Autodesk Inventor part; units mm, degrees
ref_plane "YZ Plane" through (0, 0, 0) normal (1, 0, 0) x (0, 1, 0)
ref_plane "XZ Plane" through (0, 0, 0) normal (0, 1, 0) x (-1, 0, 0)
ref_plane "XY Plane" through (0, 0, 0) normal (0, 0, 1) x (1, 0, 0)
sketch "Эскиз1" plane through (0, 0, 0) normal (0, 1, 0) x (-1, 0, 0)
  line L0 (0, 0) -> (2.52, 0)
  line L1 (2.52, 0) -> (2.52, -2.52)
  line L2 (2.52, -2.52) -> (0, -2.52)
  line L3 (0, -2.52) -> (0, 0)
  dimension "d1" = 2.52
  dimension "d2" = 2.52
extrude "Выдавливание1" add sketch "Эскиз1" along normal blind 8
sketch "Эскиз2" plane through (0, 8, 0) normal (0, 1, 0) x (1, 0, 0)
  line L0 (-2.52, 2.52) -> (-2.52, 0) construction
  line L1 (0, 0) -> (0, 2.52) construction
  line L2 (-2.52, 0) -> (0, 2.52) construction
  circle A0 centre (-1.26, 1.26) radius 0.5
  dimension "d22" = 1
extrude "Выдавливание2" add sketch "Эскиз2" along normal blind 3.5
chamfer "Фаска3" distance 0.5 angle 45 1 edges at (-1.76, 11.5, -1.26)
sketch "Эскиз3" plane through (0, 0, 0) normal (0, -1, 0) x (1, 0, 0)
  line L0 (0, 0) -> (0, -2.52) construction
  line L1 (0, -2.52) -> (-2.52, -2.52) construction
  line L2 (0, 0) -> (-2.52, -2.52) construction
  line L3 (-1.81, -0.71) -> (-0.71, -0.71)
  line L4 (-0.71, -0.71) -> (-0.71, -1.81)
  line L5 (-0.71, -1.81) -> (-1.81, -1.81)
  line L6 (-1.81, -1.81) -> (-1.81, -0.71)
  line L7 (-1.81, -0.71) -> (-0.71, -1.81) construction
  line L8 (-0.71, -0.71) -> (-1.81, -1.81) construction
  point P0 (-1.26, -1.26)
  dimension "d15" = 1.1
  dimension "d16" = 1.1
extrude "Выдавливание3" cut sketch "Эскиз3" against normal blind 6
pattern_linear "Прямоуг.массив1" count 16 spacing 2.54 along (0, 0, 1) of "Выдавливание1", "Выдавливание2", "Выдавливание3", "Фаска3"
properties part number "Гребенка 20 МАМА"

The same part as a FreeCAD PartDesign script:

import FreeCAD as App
import Part
import Sketcher

V = App.Vector


def edges_at(feature, points):
    """Names of the edges that pass closest to the given points."""
    edges = feature.Shape.Edges
    near = lambda p: min(range(len(edges)), key=lambda i: edges[i].distToShape(Part.Vertex(*p))[0])
    return sorted({f"Edge{near(p) + 1}" for p in points})

doc = App.newDocument("Part")
body = doc.addObject("PartDesign::Body", "Body")
body.AllowCompound = True

# Sketch on XZ plane
sketch1 = body.newObject("Sketcher::SketchObject", "Sketch")
sketch1.AttachmentSupport = (doc.getObject("XZ_Plane"), [""])
sketch1.MapMode = "FlatFace"
sketch1.addGeometry(Part.LineSegment(V(-2.52, 0, 0), V(0, 0, 0)), False)
sketch1.addGeometry(Part.LineSegment(V(0, 0, 0), V(0, -2.52, 0)), False)
sketch1.addGeometry(Part.LineSegment(V(0, -2.52, 0), V(-2.52, -2.52, 0)), False)
sketch1.addGeometry(Part.LineSegment(V(-2.52, -2.52, 0), V(-2.52, 0, 0)), False)
sketch1.addConstraint(Sketcher.Constraint("Coincident", 0, 2, 1, 1))
sketch1.addConstraint(Sketcher.Constraint("Coincident", 1, 2, 2, 1))
sketch1.addConstraint(Sketcher.Constraint("Coincident", 2, 2, 3, 1))
sketch1.addConstraint(Sketcher.Constraint("Coincident", 3, 2, 0, 1))
sketch1.addConstraint(Sketcher.Constraint("Horizontal", 0))
sketch1.addConstraint(Sketcher.Constraint("Vertical", 1))
sketch1.addConstraint(Sketcher.Constraint("Horizontal", 2))
sketch1.addConstraint(Sketcher.Constraint("Vertical", 3))
sketch1.addConstraint(Sketcher.Constraint("Coincident", 0, 2, -1, 1))
sketch1.addConstraint(Sketcher.Constraint("Equal", 2, 1))
sketch1.addConstraint(Sketcher.Constraint("DistanceX", 0, 1, 0, 2, 2.52))
pad1 = body.newObject("PartDesign::Pad", "Pad")
pad1.Profile = sketch1
pad1.Length = 8
pad1.Reversed = True

# Sketch on XZ plane
sketch2 = body.newObject("Sketcher::SketchObject", "Sketch001")
sketch2.AttachmentSupport = (doc.getObject("XZ_Plane"), [""])
sketch2.MapMode = "FlatFace"
sketch2.AttachmentOffset = App.Placement(V(0, 0, -8), App.Rotation())
sketch2.addGeometry(Part.Circle(V(-1.26, -1.26, 0), V(0, 0, 1), 0.5), False)
sketch2.addConstraint(Sketcher.Constraint("Diameter", 0, 1.0))
sketch2.addConstraint(Sketcher.Constraint("DistanceX", 0, 3, -1, 1, 1.26))
sketch2.addConstraint(Sketcher.Constraint("DistanceY", 0, 3, -1, 1, 1.26))
pad2 = body.newObject("PartDesign::Pad", "Pad001")
pad2.Profile = sketch2
pad2.Length = 3.5
pad2.Reversed = True
doc.recompute()

chamfer = body.newObject("PartDesign::Chamfer", "Chamfer")
chamfer.Base = (pad2, edges_at(pad2, [(-1.76, 11.5, -1.26)]))
chamfer.Size = 0.5

# Sketch on XZ plane
sketch3 = body.newObject("Sketcher::SketchObject", "Sketch002")
sketch3.AttachmentSupport = (doc.getObject("XZ_Plane"), [""])
sketch3.MapMode = "FlatFace"
sketch3.addGeometry(Part.LineSegment(V(-0.71, -0.71, 0), V(-1.81, -0.71, 0)), False)
sketch3.addGeometry(Part.LineSegment(V(-1.81, -0.71, 0), V(-1.81, -1.81, 0)), False)
sketch3.addGeometry(Part.LineSegment(V(-1.81, -1.81, 0), V(-0.71, -1.81, 0)), False)
sketch3.addGeometry(Part.LineSegment(V(-0.71, -1.81, 0), V(-0.71, -0.71, 0)), False)
sketch3.addConstraint(Sketcher.Constraint("Coincident", 0, 2, 1, 1))
sketch3.addConstraint(Sketcher.Constraint("Coincident", 1, 2, 2, 1))
sketch3.addConstraint(Sketcher.Constraint("Coincident", 2, 2, 3, 1))
sketch3.addConstraint(Sketcher.Constraint("Coincident", 3, 2, 0, 1))
sketch3.addConstraint(Sketcher.Constraint("Horizontal", 0))
sketch3.addConstraint(Sketcher.Constraint("Vertical", 1))
sketch3.addConstraint(Sketcher.Constraint("Horizontal", 2))
sketch3.addConstraint(Sketcher.Constraint("Vertical", 3))
sketch3.addConstraint(Sketcher.Constraint("Equal", 2, 1))
sketch3.addConstraint(Sketcher.Constraint("DistanceX", 0, 2, 0, 1, 1.1))
sketch3.addConstraint(Sketcher.Constraint("DistanceX", 0, 2, -1, 1, 1.81))
sketch3.addConstraint(Sketcher.Constraint("DistanceY", 0, 2, -1, 1, 0.71))
pocket1 = body.newObject("PartDesign::Pocket", "Pocket")
pocket1.Profile = sketch3
pocket1.Length = 6
doc.recompute()

linearpattern = body.newObject("PartDesign::LinearPattern", "LinearPattern")
linearpattern.Originals = [pad1, pad2, pocket1, chamfer]
linearpattern.Direction = (doc.getObject("Z_Axis"), [""])
linearpattern.Mode = "offset"
linearpattern.Offset = 2.54
linearpattern.Occurrences = 16
body.Tip = linearpattern

doc.recompute()
